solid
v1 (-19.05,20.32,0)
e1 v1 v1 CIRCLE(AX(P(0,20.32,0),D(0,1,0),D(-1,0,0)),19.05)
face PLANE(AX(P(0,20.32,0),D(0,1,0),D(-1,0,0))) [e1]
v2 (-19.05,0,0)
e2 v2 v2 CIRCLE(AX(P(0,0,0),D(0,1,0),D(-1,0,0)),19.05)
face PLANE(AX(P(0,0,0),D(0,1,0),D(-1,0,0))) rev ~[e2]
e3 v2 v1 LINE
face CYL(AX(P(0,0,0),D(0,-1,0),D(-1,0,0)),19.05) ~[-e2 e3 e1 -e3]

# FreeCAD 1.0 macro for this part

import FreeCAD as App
import Part
import Sketcher
from FreeCAD import Vector
Q = App.Units.Quantity

doc = App.newDocument("Part")
params = doc.addObject("Spreadsheet::Sheet", "Params")
for row, (alias, value) in enumerate([
    ("sketch1_diameter", "1.5 in"),
    ("pad1_length", "0.8 in"),
], start=1):
    params.set(f"A{row}", alias)
    params.set(f"B{row}", "=" + value)
    params.setAlias(f"B{row}", alias)

body = doc.addObject("PartDesign::Body", "Body")

# Sketch on XZ plane
sketch1 = doc.addObject("Sketcher::SketchObject", "Sketch")
body.addObject(sketch1)
sketch1.AttachmentSupport = (doc.XZ_Plane, [""])
sketch1.MapMode = "FlatFace"
sketch1.addGeometry(Part.Circle(Vector(0, 0, 0), Vector(0, 0, 1), 19), False)
sketch1.addConstraint(Sketcher.Constraint("Coincident", 0, 3, -1, 1))
sketch1.addConstraint(Sketcher.Constraint("Diameter", 0, Q("1.5 in")))
sketch1.setExpression("Constraints[1]", "Params.sketch1_diameter")
pad1 = doc.addObject("PartDesign::Pad", "Pad")
body.addObject(pad1)
pad1.Profile = sketch1
pad1.setExpression("Length", "Params.pad1_length")
pad1.Reversed = True

doc.recompute()
